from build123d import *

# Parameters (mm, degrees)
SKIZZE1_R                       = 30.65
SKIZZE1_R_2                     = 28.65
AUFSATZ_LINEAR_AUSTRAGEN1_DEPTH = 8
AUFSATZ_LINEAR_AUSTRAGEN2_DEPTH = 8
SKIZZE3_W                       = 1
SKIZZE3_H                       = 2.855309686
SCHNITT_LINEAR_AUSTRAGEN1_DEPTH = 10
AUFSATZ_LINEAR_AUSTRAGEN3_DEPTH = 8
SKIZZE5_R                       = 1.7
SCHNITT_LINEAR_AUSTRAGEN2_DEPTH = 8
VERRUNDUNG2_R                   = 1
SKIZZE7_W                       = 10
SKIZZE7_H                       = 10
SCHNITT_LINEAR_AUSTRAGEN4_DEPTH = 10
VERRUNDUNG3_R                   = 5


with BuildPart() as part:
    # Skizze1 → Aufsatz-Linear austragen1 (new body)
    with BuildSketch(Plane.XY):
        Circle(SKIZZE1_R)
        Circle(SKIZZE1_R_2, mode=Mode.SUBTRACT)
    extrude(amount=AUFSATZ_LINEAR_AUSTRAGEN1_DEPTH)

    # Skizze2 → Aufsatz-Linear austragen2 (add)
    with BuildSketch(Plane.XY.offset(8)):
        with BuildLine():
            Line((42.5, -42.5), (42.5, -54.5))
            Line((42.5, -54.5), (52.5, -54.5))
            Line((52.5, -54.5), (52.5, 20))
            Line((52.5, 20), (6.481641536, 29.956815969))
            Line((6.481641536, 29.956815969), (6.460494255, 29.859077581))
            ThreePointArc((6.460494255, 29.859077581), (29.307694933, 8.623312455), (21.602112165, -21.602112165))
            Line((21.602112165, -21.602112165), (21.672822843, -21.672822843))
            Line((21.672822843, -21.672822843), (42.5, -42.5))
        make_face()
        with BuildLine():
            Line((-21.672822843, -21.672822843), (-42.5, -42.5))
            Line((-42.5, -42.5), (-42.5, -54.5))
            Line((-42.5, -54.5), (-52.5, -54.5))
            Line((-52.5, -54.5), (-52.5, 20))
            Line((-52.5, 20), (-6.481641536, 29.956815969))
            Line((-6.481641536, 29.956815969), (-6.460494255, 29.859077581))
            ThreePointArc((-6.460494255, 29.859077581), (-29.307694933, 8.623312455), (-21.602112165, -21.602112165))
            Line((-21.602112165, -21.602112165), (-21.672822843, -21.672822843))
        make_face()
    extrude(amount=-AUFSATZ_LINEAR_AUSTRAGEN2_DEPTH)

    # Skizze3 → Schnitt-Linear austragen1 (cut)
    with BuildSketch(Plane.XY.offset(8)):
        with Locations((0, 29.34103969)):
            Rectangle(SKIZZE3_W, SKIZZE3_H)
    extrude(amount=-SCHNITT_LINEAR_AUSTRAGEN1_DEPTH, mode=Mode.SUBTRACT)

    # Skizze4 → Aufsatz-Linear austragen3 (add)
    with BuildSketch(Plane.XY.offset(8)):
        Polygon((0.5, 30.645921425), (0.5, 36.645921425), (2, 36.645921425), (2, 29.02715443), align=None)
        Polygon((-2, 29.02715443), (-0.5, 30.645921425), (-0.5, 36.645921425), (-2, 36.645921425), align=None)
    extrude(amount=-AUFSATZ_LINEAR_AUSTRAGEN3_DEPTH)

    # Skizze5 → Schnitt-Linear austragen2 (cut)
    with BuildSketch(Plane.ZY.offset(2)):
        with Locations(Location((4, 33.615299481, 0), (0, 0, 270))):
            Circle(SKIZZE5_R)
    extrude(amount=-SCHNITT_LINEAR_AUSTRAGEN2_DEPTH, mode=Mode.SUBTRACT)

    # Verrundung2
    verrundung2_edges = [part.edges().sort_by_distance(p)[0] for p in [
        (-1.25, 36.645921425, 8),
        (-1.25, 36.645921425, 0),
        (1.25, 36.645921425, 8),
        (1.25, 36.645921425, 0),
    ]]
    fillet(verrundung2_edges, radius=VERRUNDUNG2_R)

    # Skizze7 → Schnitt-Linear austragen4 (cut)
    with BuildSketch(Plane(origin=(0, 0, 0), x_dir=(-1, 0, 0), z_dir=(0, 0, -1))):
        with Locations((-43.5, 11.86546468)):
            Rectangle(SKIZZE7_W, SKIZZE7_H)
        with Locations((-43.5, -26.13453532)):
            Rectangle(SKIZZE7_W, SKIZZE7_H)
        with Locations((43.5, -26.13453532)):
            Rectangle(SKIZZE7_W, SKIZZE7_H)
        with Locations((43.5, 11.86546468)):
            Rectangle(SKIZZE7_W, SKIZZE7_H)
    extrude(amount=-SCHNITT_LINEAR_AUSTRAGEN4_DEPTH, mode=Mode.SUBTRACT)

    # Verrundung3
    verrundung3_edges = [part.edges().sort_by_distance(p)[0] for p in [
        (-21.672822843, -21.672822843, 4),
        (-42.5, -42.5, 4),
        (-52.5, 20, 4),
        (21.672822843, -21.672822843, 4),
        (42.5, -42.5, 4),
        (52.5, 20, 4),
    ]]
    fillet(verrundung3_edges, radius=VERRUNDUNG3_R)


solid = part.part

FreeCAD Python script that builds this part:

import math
import FreeCAD as App
import Part
import Sketcher


def edges_at(feature, points):
    """Names of the edges that pass closest to the given points."""
    edges = feature.Shape.Edges
    near = lambda p: min(range(len(edges)), key=lambda i: edges[i].distToShape(Part.Vertex(*p))[0])
    return sorted({f"Edge{near(p) + 1}" for p in points})

doc = App.newDocument("Part")
body = doc.addObject("PartDesign::Body", "Body")

sketch1 = body.newObject("Sketcher::SketchObject", "Sketch")
sketch1.AttachmentSupport = (doc.getObject("XY_Plane"), [""])
sketch1.MapMode = "FlatFace"
sketch1.addGeometry([
    Part.Circle(App.Vector(0, 0, 0), App.Vector(0, 0, 1), 30.65),
    Part.Circle(App.Vector(0, 0, 0), App.Vector(0, 0, 1), 28.65),
], False)
sketch1.addConstraint([
    Sketcher.Constraint("Coincident", 0, 3, -1, 1),
    Sketcher.Constraint("Coincident", 1, 3, -1, 1),
    Sketcher.Constraint("Diameter", 0, 61.3),
    Sketcher.Constraint("Diameter", 1, 57.3),
])
pad1 = body.newObject("PartDesign::Pad", "Pad")
pad1.Profile = sketch1
pad1.Length = 8

sketch2 = body.newObject("Sketcher::SketchObject", "Sketch001")
sketch2.AttachmentSupport = (doc.getObject("XY_Plane"), [""])
sketch2.MapMode = "FlatFace"
sketch2.AttachmentOffset = App.Placement(App.Vector(0, 0, 8), App.Rotation())
sketch2.addGeometry([
    Part.LineSegment(App.Vector(42.5, -42.5, 0), App.Vector(42.5, -54.5, 0)),
    Part.LineSegment(App.Vector(42.5, -54.5, 0), App.Vector(52.5, -54.5, 0)),
    Part.LineSegment(App.Vector(52.5, -54.5, 0), App.Vector(52.5, 20, 0)),
    Part.LineSegment(App.Vector(52.5, 20, 0), App.Vector(6.481642, 29.956816, 0)),
    Part.LineSegment(App.Vector(6.481642, 29.956816, 0), App.Vector(6.460494, 29.859078, 0)),
    Part.ArcOfCircle(Part.Circle(App.Vector(0, 0, 0), App.Vector(0, 0, 1), 30.55), math.radians(-45), math.radians(77.791324)),
    Part.LineSegment(App.Vector(21.602112, -21.602112, 0), App.Vector(42.5, -42.5, 0)),
    Part.LineSegment(App.Vector(-42.5, -54.5, 0), App.Vector(-42.5, -42.5, 0)),
    Part.LineSegment(App.Vector(-42.5, -42.5, 0), App.Vector(-21.602112, -21.602112, 0)),
    Part.ArcOfCircle(Part.Circle(App.Vector(0, 0, 0), App.Vector(0, 0, 1), 30.55), math.radians(102.208676), math.radians(225)),
    Part.LineSegment(App.Vector(-6.460494, 29.859078, 0), App.Vector(-6.481642, 29.956816, 0)),
    Part.LineSegment(App.Vector(-6.481642, 29.956816, 0), App.Vector(-52.5, 20, 0)),
    Part.LineSegment(App.Vector(-52.5, 20, 0), App.Vector(-52.5, -54.5, 0)),
    Part.LineSegment(App.Vector(-52.5, -54.5, 0), App.Vector(-42.5, -54.5, 0)),
], False)
sketch2.addConstraint([
    Sketcher.Constraint("Coincident", 0, 2, 1, 1),
    Sketcher.Constraint("Coincident", 1, 2, 2, 1),
    Sketcher.Constraint("Coincident", 2, 2, 3, 1),
    Sketcher.Constraint("Coincident", 3, 2, 4, 1),
    Sketcher.Constraint("Coincident", 4, 2, 5, 2),
    Sketcher.Constraint("Coincident", 5, 1, 6, 1),
    Sketcher.Constraint("Coincident", 6, 2, 0, 1),
    Sketcher.Constraint("Coincident", 7, 2, 8, 1),
    Sketcher.Constraint("Coincident", 8, 2, 9, 2),
    Sketcher.Constraint("Coincident", 9, 1, 10, 1),
    Sketcher.Constraint("Coincident", 10, 2, 11, 1),
    Sketcher.Constraint("Coincident", 11, 2, 12, 1),
    Sketcher.Constraint("Coincident", 12, 2, 13, 1),
    Sketcher.Constraint("Coincident", 13, 2, 7, 1),
    Sketcher.Constraint("Vertical", 0),
    Sketcher.Constraint("Horizontal", 1),
    Sketcher.Constraint("Vertical", 2),
    Sketcher.Constraint("Vertical", 7),
    Sketcher.Constraint("Vertical", 12),
    Sketcher.Constraint("Horizontal", 13),
    Sketcher.Constraint("Coincident", 5, 3, -1, 1),
    Sketcher.Constraint("Coincident", 9, 3, -1, 1),
    Sketcher.Constraint("Equal", 5, 9),
    Sketcher.Constraint("Symmetric", 6, 2, 7, 2, -2),
    Sketcher.Constraint("Symmetric", 3, 2, 10, 2, -2),
    Sketcher.Constraint("Symmetric", 2, 2, 11, 2, -2),
    Sketcher.Constraint("Perpendicular", 3, 4),
    Sketcher.Constraint("Perpendicular", 6, 8),
    Sketcher.Constraint("Perpendicular", 10, 11),
    Sketcher.Constraint("Horizontal", 5, 1, 8, 2),
    Sketcher.Constraint("Horizontal", 1, 2, 12, 2),
    Sketcher.Constraint("DistanceX", 1, 1, 1, 2, 10.0),
    Sketcher.Constraint("DistanceY", 0, 2, 0, 1, 12.0),
    Sketcher.Constraint("Radius", 5, 30.55),
    Sketcher.Constraint("DistanceY", 2, 1, 2, 2, 74.5),
    Sketcher.Constraint("DistanceY", -1, 1, 2, 2, 20.0),
    Sketcher.Constraint("DistanceX", 7, 2, 6, 2, 85.0),
    Sketcher.Constraint("Distance", 4, 0.1),
    Sketcher.Constraint("DistanceX", -1, 1, 3, 2, 6.481642),
])
pad2 = body.newObject("PartDesign::Pad", "Pad001")
pad2.Profile = sketch2
pad2.Length = 8
pad2.Reversed = True

sketch3 = body.newObject("Sketcher::SketchObject", "Sketch002")
sketch3.AttachmentSupport = (doc.getObject("XY_Plane"), [""])
sketch3.MapMode = "FlatFace"
sketch3.AttachmentOffset = App.Placement(App.Vector(0, 0, 8), App.Rotation())
sketch3.addGeometry([
    Part.LineSegment(App.Vector(-0.5, 30.768695, 0), App.Vector(-0.5, 27.913385, 0)),
    Part.LineSegment(App.Vector(-0.5, 27.913385, 0), App.Vector(0.5, 27.913385, 0)),
    Part.LineSegment(App.Vector(0.5, 27.913385, 0), App.Vector(0.5, 30.768695, 0)),
    Part.LineSegment(App.Vector(0.5, 30.768695, 0), App.Vector(-0.5, 30.768695, 0)),
], False)
sketch3.addConstraint([
    Sketcher.Constraint("Coincident", 0, 2, 1, 1),
    Sketcher.Constraint("Coincident", 1, 2, 2, 1),
    Sketcher.Constraint("Coincident", 2, 2, 3, 1),
    Sketcher.Constraint("Coincident", 3, 2, 0, 1),
    Sketcher.Constraint("Vertical", 0),
    Sketcher.Constraint("Horizontal", 1),
    Sketcher.Constraint("Vertical", 2),
    Sketcher.Constraint("Horizontal", 3),
    Sketcher.Constraint("DistanceX", 1, 1, 1, 2, 1.0),
    Sketcher.Constraint("DistanceX", 0, 2, -1, 1, 0.5),
    Sketcher.Constraint("DistanceY", 0, 2, 0, 1, 2.85531),
    Sketcher.Constraint("DistanceY", -1, 1, 0, 2, 27.913385),
])
pocket1 = body.newObject("PartDesign::Pocket", "Pocket")
pocket1.Profile = sketch3
pocket1.Length = 10

sketch4 = body.newObject("Sketcher::SketchObject", "Sketch003")
sketch4.AttachmentSupport = (doc.getObject("XY_Plane"), [""])
sketch4.MapMode = "FlatFace"
sketch4.AttachmentOffset = App.Placement(App.Vector(0, 0, 8), App.Rotation())
sketch4.addGeometry([
    Part.LineSegment(App.Vector(0.5, 36.645921, 0), App.Vector(0.5, 30.645921, 0)),
    Part.LineSegment(App.Vector(0.5, 30.645921, 0), App.Vector(2, 29.027154, 0)),
    Part.LineSegment(App.Vector(2, 29.027154, 0), App.Vector(2, 36.645921, 0)),
    Part.LineSegment(App.Vector(2, 36.645921, 0), App.Vector(0.5, 36.645921, 0)),
    Part.LineSegment(App.Vector(-2, 29.027154, 0), App.Vector(-0.5, 30.645921, 0)),
    Part.LineSegment(App.Vector(-0.5, 30.645921, 0), App.Vector(-0.5, 36.645921, 0)),
    Part.LineSegment(App.Vector(-0.5, 36.645921, 0), App.Vector(-2, 36.645921, 0)),
    Part.LineSegment(App.Vector(-2, 36.645921, 0), App.Vector(-2, 29.027154, 0)),
], False)
sketch4.addConstraint([
    Sketcher.Constraint("Coincident", 0, 2, 1, 1),
    Sketcher.Constraint("Coincident", 1, 2, 2, 1),
    Sketcher.Constraint("Coincident", 2, 2, 3, 1),
    Sketcher.Constraint("Coincident", 3, 2, 0, 1),
    Sketcher.Constraint("Coincident", 4, 2, 5, 1),
    Sketcher.Constraint("Coincident", 5, 2, 6, 1),
    Sketcher.Constraint("Coincident", 6, 2, 7, 1),
    Sketcher.Constraint("Coincident", 7, 2, 4, 1),
    Sketcher.Constraint("Vertical", 0),
    Sketcher.Constraint("Vertical", 2),
    Sketcher.Constraint("Horizontal", 3),
    Sketcher.Constraint("Vertical", 5),
    Sketcher.Constraint("Horizontal", 6),
    Sketcher.Constraint("Vertical", 7),
    Sketcher.Constraint("Symmetric", 0, 2, 4, 2, -2),
    Sketcher.Constraint("Symmetric", 2, 2, 6, 2, -2),
    Sketcher.Constraint("Horizontal", 1, 2, 7, 2),
    Sketcher.Constraint("DistanceY", 0, 2, 0, 1, 6.0),
    Sketcher.Constraint("DistanceX", 3, 2, 3, 1, 1.5),
    Sketcher.Constraint("DistanceX", -1, 1, 1, 2, 2.0),
    Sketcher.Constraint("Distance", 1, 2.2069),
    Sketcher.Constraint("DistanceY", -1, 1, 0, 2, 30.645921),
])
pad3 = body.newObject("PartDesign::Pad", "Pad002")
pad3.Profile = sketch4
pad3.Length = 8
pad3.Reversed = True

sketch5 = body.newObject("Sketcher::SketchObject", "Sketch004")
sketch5.AttachmentSupport = (doc.getObject("YZ_Plane"), [""])
sketch5.MapMode = "FlatFace"
sketch5.AttachmentOffset = App.Placement(App.Vector(0, 0, -2), App.Rotation())
sketch5.addGeometry(Part.Circle(App.Vector(33.615299, 4, 0), App.Vector(0, 0, 1), 1.7), False)
sketch5.addConstraint([
    Sketcher.Constraint("Diameter", 0, 3.4),
    Sketcher.Constraint("DistanceY", -1, 1, 0, 3, 4.0),
    Sketcher.Constraint("DistanceX", -1, 1, 0, 3, 33.615299),
])
pocket2 = body.newObject("PartDesign::Pocket", "Pocket001")
pocket2.Profile = sketch5
pocket2.Length = 8
pocket2.Reversed = True
doc.recompute()

fillet = body.newObject("PartDesign::Fillet", "Fillet")
fillet.Base = (pocket2, edges_at(pocket2, [
    (-1.25, 36.646, 8),
    (-1.25, 36.646, 0),
    (1.25, 36.646, 8),
    (1.25, 36.646, 0),
]))
fillet.Radius = 1

sketch6 = body.newObject("Sketcher::SketchObject", "Sketch005")
sketch6.AttachmentSupport = (doc.getObject("XY_Plane"), [""])
sketch6.MapMode = "FlatFace"
sketch6.addGeometry([
    Part.LineSegment(App.Vector(48.5, 16.865465, 0), App.Vector(48.5, 6.865465, 0)),
    Part.LineSegment(App.Vector(48.5, 6.865465, 0), App.Vector(38.5, 6.865465, 0)),
    Part.LineSegment(App.Vector(38.5, 6.865465, 0), App.Vector(38.5, 16.865465, 0)),
    Part.LineSegment(App.Vector(38.5, 16.865465, 0), App.Vector(48.5, 16.865465, 0)),
    Part.LineSegment(App.Vector(48.5, -21.134535, 0), App.Vector(48.5, -31.134535, 0)),
    Part.LineSegment(App.Vector(48.5, -31.134535, 0), App.Vector(38.5, -31.134535, 0)),
    Part.LineSegment(App.Vector(38.5, -31.134535, 0), App.Vector(38.5, -21.134535, 0)),
    Part.LineSegment(App.Vector(38.5, -21.134535, 0), App.Vector(48.5, -21.134535, 0)),
    Part.LineSegment(App.Vector(-38.5, -21.134535, 0), App.Vector(-38.5, -31.134535, 0)),
    Part.LineSegment(App.Vector(-38.5, -31.134535, 0), App.Vector(-48.5, -31.134535, 0)),
    Part.LineSegment(App.Vector(-48.5, -31.134535, 0), App.Vector(-48.5, -21.134535, 0)),
    Part.LineSegment(App.Vector(-48.5, -21.134535, 0), App.Vector(-38.5, -21.134535, 0)),
    Part.LineSegment(App.Vector(-38.5, 16.865465, 0), App.Vector(-38.5, 6.865465, 0)),
    Part.LineSegment(App.Vector(-38.5, 6.865465, 0), App.Vector(-48.5, 6.865465, 0)),
    Part.LineSegment(App.Vector(-48.5, 6.865465, 0), App.Vector(-48.5, 16.865465, 0)),
    Part.LineSegment(App.Vector(-48.5, 16.865465, 0), App.Vector(-38.5, 16.865465, 0)),
], False)
sketch6.addConstraint([
    Sketcher.Constraint("Coincident", 0, 2, 1, 1),
    Sketcher.Constraint("Coincident", 1, 2, 2, 1),
    Sketcher.Constraint("Coincident", 2, 2, 3, 1),
    Sketcher.Constraint("Coincident", 3, 2, 0, 1),
    Sketcher.Constraint("Coincident", 4, 2, 5, 1),
    Sketcher.Constraint("Coincident", 5, 2, 6, 1),
    Sketcher.Constraint("Coincident", 6, 2, 7, 1),
    Sketcher.Constraint("Coincident", 7, 2, 4, 1),
    Sketcher.Constraint("Coincident", 8, 2, 9, 1),
    Sketcher.Constraint("Coincident", 9, 2, 10, 1),
    Sketcher.Constraint("Coincident", 10, 2, 11, 1),
    Sketcher.Constraint("Coincident", 11, 2, 8, 1),
    Sketcher.Constraint("Coincident", 12, 2, 13, 1),
    Sketcher.Constraint("Coincident", 13, 2, 14, 1),
    Sketcher.Constraint("Coincident", 14, 2, 15, 1),
    Sketcher.Constraint("Coincident", 15, 2, 12, 1),
    Sketcher.Constraint("Vertical", 0),
    Sketcher.Constraint("Horizontal", 1),
    Sketcher.Constraint("Vertical", 2),
    Sketcher.Constraint("Horizontal", 3),
    Sketcher.Constraint("Vertical", 4),
    Sketcher.Constraint("Horizontal", 5),
    Sketcher.Constraint("Vertical", 6),
    Sketcher.Constraint("Horizontal", 7),
    Sketcher.Constraint("Vertical", 8),
    Sketcher.Constraint("Horizontal", 9),
    Sketcher.Constraint("Vertical", 10),
    Sketcher.Constraint("Horizontal", 11),
    Sketcher.Constraint("Vertical", 12),
    Sketcher.Constraint("Horizontal", 13),
    Sketcher.Constraint("Vertical", 14),
    Sketcher.Constraint("Horizontal", 15),
    Sketcher.Constraint("Symmetric", 5, 2, 8, 2, -2),
    Sketcher.Constraint("Symmetric", 7, 2, 10, 2, -2),
    Sketcher.Constraint("Symmetric", 1, 2, 12, 2, -2),
    Sketcher.Constraint("Symmetric", 3, 2, 14, 2, -2),
    Sketcher.Constraint("Vertical", 3, 2, 4, 2),
    Sketcher.Constraint("Vertical", 2, 2, 5, 2),
    Sketcher.Constraint("Equal", 15, 0),
    Sketcher.Constraint("Equal", 2, 4),
    Sketcher.Constraint("DistanceX", 1, 2, 1, 1, 10.0),
    Sketcher.Constraint("DistanceY", 4, 2, 0, 2, 38.0),
    Sketcher.Constraint("DistanceX", 8, 2, 5, 2, 77.0),
    Sketcher.Constraint("DistanceY", -1, 1, 0, 2, 6.865465),
])
pocket3 = body.newObject("PartDesign::Pocket", "Pocket002")
pocket3.Profile = sketch6
pocket3.Length = 10
pocket3.Reversed = True
doc.recompute()

fillet2 = body.newObject("PartDesign::Fillet", "Fillet001")
fillet2.Base = (pocket3, edges_at(pocket3, [
    (-21.673, -21.673, 4),
    (-42.5, -42.5, 4),
    (-52.5, 20, 4),
    (21.673, -21.673, 4),
    (42.5, -42.5, 4),
    (52.5, 20, 4),
]))
fillet2.Radius = 5

doc.recompute()
